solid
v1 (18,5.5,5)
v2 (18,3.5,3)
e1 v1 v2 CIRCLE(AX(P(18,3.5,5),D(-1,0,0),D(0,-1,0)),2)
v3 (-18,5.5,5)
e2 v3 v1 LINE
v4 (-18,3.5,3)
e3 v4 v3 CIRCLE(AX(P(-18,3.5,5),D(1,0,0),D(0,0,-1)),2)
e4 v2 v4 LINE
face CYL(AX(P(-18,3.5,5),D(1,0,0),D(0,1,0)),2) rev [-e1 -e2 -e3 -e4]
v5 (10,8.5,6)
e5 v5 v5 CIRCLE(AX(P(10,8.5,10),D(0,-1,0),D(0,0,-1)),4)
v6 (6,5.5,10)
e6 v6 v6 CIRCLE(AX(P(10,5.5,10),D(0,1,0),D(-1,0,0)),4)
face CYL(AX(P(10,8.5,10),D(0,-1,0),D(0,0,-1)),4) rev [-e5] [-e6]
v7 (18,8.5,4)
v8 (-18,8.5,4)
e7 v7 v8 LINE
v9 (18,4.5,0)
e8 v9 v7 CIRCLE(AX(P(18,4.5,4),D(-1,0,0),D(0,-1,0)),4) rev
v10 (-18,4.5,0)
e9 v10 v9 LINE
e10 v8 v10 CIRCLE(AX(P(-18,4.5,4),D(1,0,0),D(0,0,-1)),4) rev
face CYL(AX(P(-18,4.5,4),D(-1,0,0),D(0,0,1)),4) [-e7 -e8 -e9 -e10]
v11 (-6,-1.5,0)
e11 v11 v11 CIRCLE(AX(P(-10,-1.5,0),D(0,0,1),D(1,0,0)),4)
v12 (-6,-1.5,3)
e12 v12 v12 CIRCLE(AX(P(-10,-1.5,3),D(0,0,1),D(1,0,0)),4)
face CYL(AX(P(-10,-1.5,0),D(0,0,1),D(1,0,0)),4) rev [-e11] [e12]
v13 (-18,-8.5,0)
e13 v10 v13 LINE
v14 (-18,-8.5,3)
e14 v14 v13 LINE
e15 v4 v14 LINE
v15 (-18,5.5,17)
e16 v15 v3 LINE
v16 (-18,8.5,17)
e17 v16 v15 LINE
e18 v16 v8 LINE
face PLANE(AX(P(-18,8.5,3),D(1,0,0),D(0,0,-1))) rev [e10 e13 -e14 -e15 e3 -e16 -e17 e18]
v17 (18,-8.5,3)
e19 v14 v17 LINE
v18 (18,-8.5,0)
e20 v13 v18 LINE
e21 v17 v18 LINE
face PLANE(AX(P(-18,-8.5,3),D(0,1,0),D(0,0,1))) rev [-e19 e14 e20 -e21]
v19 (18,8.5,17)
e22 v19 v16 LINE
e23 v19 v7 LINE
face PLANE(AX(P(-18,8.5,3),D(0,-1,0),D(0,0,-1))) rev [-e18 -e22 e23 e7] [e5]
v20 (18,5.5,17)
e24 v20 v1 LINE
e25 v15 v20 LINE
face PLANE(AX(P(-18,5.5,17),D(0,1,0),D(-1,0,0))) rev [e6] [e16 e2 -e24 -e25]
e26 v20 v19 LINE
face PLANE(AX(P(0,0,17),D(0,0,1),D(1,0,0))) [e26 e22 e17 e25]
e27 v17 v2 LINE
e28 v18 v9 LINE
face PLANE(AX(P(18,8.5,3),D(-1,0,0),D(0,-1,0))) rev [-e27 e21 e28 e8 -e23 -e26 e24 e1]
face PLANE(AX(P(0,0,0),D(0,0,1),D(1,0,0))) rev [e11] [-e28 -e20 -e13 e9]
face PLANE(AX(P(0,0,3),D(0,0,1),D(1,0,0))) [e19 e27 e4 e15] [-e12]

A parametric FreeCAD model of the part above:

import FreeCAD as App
import Part
import Sketcher


def edges_at(feature, points):
    """Names of the edges that pass closest to the given points."""
    edges = feature.Shape.Edges
    near = lambda p: min(range(len(edges)), key=lambda i: edges[i].distToShape(Part.Vertex(*p))[0])
    return sorted({f"Edge{near(p) + 1}" for p in points})

doc = App.newDocument("Part")
body = doc.addObject("PartDesign::Body", "Body")

# Sketch on XY plane
sketch1 = body.newObject("Sketcher::SketchObject", "Sketch")
sketch1.AttachmentSupport = (doc.getObject("XY_Plane"), [""])
sketch1.MapMode = "FlatFace"
sketch1.addGeometry(Part.LineSegment(App.Vector(-18, 8.5, 0), App.Vector(-18, -8.5, 0)), False)
sketch1.addGeometry(Part.LineSegment(App.Vector(-18, -8.5, 0), App.Vector(18, -8.5, 0)), False)
sketch1.addGeometry(Part.LineSegment(App.Vector(18, -8.5, 0), App.Vector(18, 8.5, 0)), False)
sketch1.addGeometry(Part.LineSegment(App.Vector(18, 8.5, 0), App.Vector(-18, 8.5, 0)), False)
sketch1.addConstraint(Sketcher.Constraint("Coincident", 0, 2, 1, 1))
sketch1.addConstraint(Sketcher.Constraint("Coincident", 1, 2, 2, 1))
sketch1.addConstraint(Sketcher.Constraint("Coincident", 2, 2, 3, 1))
sketch1.addConstraint(Sketcher.Constraint("Coincident", 3, 2, 0, 1))
sketch1.addConstraint(Sketcher.Constraint("Vertical", 0))
sketch1.addConstraint(Sketcher.Constraint("Horizontal", 1))
sketch1.addConstraint(Sketcher.Constraint("Vertical", 2))
sketch1.addConstraint(Sketcher.Constraint("Horizontal", 3))
sketch1.addConstraint(Sketcher.Constraint("Symmetric", 0, 2, 2, 2, -1, 1))
sketch1.addConstraint(Sketcher.Constraint("DistanceX", 1, 1, 1, 2, 36.0))
sketch1.addConstraint(Sketcher.Constraint("DistanceY", 0, 2, 0, 1, 17.0))
pad1 = body.newObject("PartDesign::Pad", "Pad")
pad1.Profile = sketch1
pad1.Length = 3

# Sketch on XY plane
sketch2 = body.newObject("Sketcher::SketchObject", "Sketch001")
sketch2.AttachmentSupport = (doc.getObject("XY_Plane"), [""])
sketch2.MapMode = "FlatFace"
sketch2.AttachmentOffset = App.Placement(App.Vector(0, 0, 3), App.Rotation())
sketch2.addGeometry(Part.LineSegment(App.Vector(-18, 8.5, 0), App.Vector(-18, 5.5, 0)), False)
sketch2.addGeometry(Part.LineSegment(App.Vector(-18, 5.5, 0), App.Vector(18, 5.5, 0)), False)
sketch2.addGeometry(Part.LineSegment(App.Vector(18, 5.5, 0), App.Vector(18, 8.5, 0)), False)
sketch2.addGeometry(Part.LineSegment(App.Vector(18, 8.5, 0), App.Vector(-18, 8.5, 0)), False)
sketch2.addConstraint(Sketcher.Constraint("Coincident", 0, 2, 1, 1))
sketch2.addConstraint(Sketcher.Constraint("Coincident", 1, 2, 2, 1))
sketch2.addConstraint(Sketcher.Constraint("Coincident", 2, 2, 3, 1))
sketch2.addConstraint(Sketcher.Constraint("Coincident", 3, 2, 0, 1))
sketch2.addConstraint(Sketcher.Constraint("Vertical", 0))
sketch2.addConstraint(Sketcher.Constraint("Horizontal", 1))
sketch2.addConstraint(Sketcher.Constraint("Vertical", 2))
sketch2.addConstraint(Sketcher.Constraint("Horizontal", 3))
sketch2.addConstraint(Sketcher.Constraint("DistanceX", 1, 1, 1, 2, 36.0))
sketch2.addConstraint(Sketcher.Constraint("DistanceY", 0, 2, 0, 1, 3.0))
sketch2.addConstraint(Sketcher.Constraint("DistanceX", 0, 2, -1, 1, 18.0))
sketch2.addConstraint(Sketcher.Constraint("DistanceY", -1, 1, 0, 2, 5.5))
pad2 = body.newObject("PartDesign::Pad", "Pad001")
pad2.Profile = sketch2
pad2.Length = 14
doc.recompute()

fillet = body.newObject("PartDesign::Fillet", "Fillet")
fillet.Base = (pad2, edges_at(pad2, [(0, 5.5, 3)]))
fillet.Radius = 2
doc.recompute()

fillet2 = body.newObject("PartDesign::Fillet", "Fillet001")
fillet2.Base = (fillet, edges_at(fillet, [(0, 8.5, 0)]))
fillet2.Radius = 4

# Sketch on XZ plane
sketch3 = body.newObject("Sketcher::SketchObject", "Sketch002")
sketch3.AttachmentSupport = (doc.getObject("XZ_Plane"), [""])
sketch3.MapMode = "FlatFace"
sketch3.AttachmentOffset = App.Placement(App.Vector(0, 0, 8.5), App.Rotation())
sketch3.addGeometry(Part.Circle(App.Vector(10, 10, 0), App.Vector(0, 0, 1), 4), False)
sketch3.addConstraint(Sketcher.Constraint("Diameter", 0, 8.0))
sketch3.addConstraint(Sketcher.Constraint("DistanceX", -1, 1, 0, 3, 10.0))
sketch3.addConstraint(Sketcher.Constraint("DistanceY", -1, 1, 0, 3, 10.0))
pocket1 = body.newObject("PartDesign::Pocket", "Pocket")
pocket1.Profile = sketch3
pocket1.Type = "ThroughAll"

# Sketch on XY plane
sketch4 = body.newObject("Sketcher::SketchObject", "Sketch003")
sketch4.AttachmentSupport = (doc.getObject("XY_Plane"), [""])
sketch4.MapMode = "FlatFace"
sketch4.AttachmentOffset = App.Placement(App.Vector(0, 0, 17), App.Rotation())
sketch4.addGeometry(Part.Circle(App.Vector(-10, -1.5, 0), App.Vector(0, 0, 1), 4), False)
sketch4.addConstraint(Sketcher.Constraint("Diameter", 0, 8.0))
sketch4.addConstraint(Sketcher.Constraint("DistanceX", 0, 3, -1, 1, 10.0))
sketch4.addConstraint(Sketcher.Constraint("DistanceY", 0, 3, -1, 1, 1.5))
pocket2 = body.newObject("PartDesign::Pocket", "Pocket001")
pocket2.Profile = sketch4
pocket2.Type = "ThroughAll"

doc.recompute()
